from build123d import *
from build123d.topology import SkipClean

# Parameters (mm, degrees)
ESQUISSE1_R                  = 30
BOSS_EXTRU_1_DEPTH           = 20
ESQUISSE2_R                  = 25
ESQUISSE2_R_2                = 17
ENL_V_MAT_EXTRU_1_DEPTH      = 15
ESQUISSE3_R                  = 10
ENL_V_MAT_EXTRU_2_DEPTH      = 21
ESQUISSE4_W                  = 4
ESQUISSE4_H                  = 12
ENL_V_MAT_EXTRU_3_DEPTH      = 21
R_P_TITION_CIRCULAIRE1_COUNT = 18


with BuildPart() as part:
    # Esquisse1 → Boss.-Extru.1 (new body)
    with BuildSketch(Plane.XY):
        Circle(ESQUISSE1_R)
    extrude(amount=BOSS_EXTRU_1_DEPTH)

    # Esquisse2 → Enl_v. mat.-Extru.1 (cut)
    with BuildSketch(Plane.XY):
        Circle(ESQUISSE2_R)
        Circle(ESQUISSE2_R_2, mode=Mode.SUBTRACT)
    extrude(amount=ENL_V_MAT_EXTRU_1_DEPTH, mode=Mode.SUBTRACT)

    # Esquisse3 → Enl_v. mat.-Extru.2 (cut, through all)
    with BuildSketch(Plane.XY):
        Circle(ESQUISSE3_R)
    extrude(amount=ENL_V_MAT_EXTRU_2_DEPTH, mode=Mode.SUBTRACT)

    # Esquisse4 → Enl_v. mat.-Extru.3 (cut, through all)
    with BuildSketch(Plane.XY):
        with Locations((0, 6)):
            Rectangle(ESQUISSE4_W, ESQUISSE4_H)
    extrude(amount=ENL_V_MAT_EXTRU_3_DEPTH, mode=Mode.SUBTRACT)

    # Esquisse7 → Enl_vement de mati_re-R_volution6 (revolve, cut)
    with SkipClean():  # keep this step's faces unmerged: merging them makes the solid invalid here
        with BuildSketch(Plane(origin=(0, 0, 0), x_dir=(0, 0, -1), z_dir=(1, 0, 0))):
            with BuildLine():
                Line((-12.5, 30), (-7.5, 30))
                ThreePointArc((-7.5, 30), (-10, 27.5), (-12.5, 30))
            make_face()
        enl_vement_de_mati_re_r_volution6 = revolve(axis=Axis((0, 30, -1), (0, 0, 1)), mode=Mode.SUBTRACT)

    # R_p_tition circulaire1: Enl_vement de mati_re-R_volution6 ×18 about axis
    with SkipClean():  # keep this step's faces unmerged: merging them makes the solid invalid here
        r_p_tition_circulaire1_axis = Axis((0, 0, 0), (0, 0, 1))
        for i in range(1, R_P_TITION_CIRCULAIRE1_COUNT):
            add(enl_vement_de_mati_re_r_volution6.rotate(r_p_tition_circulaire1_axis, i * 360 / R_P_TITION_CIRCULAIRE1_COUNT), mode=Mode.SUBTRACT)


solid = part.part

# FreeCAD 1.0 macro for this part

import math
import FreeCAD as App
import Part
import Sketcher

V = App.Vector

doc = App.newDocument("Part")
body = doc.addObject("PartDesign::Body", "Body")

# Sketch on XY plane
sketch1 = doc.addObject("Sketcher::SketchObject", "Sketch")
body.addObject(sketch1)
sketch1.AttachmentSupport = (doc.XY_Plane, [""])
sketch1.MapMode = "FlatFace"
sketch1.addGeometry(Part.Circle(V(0, 0, 0), V(0, 0, 1), 30), False)
sketch1.addConstraint(Sketcher.Constraint("Coincident", 0, 3, -1, 1))
sketch1.addConstraint(Sketcher.Constraint("Diameter", 0, 60.0))
pad1 = doc.addObject("PartDesign::Pad", "Pad")
body.addObject(pad1)
pad1.Profile = sketch1
pad1.Length = 20

# Sketch on XY plane
sketch2 = doc.addObject("Sketcher::SketchObject", "Sketch001")
body.addObject(sketch2)
sketch2.AttachmentSupport = (doc.XY_Plane, [""])
sketch2.MapMode = "FlatFace"
sketch2.addGeometry(Part.Circle(V(0, 0, 0), V(0, 0, 1), 25), False)
sketch2.addGeometry(Part.Circle(V(0, 0, 0), V(0, 0, 1), 17), False)
sketch2.addConstraint(Sketcher.Constraint("Coincident", 0, 3, -1, 1))
sketch2.addConstraint(Sketcher.Constraint("Coincident", 1, 3, -1, 1))
sketch2.addConstraint(Sketcher.Constraint("Diameter", 0, 50.0))
sketch2.addConstraint(Sketcher.Constraint("Diameter", 1, 34.0))
pocket1 = doc.addObject("PartDesign::Pocket", "Pocket")
body.addObject(pocket1)
pocket1.Profile = sketch2
pocket1.Length = 15
pocket1.Reversed = True

# Sketch on XY plane
sketch3 = doc.addObject("Sketcher::SketchObject", "Sketch002")
body.addObject(sketch3)
sketch3.AttachmentSupport = (doc.XY_Plane, [""])
sketch3.MapMode = "FlatFace"
sketch3.addGeometry(Part.Circle(V(0, 0, 0), V(0, 0, 1), 10), False)
sketch3.addConstraint(Sketcher.Constraint("Coincident", 0, 3, -1, 1))
sketch3.addConstraint(Sketcher.Constraint("Diameter", 0, 20.0))
pocket2 = doc.addObject("PartDesign::Pocket", "Pocket001")
body.addObject(pocket2)
pocket2.Profile = sketch3
pocket2.Type = "ThroughAll"
pocket2.Reversed = True

# Sketch on XY plane
sketch4 = doc.addObject("Sketcher::SketchObject", "Sketch003")
body.addObject(sketch4)
sketch4.AttachmentSupport = (doc.XY_Plane, [""])
sketch4.MapMode = "FlatFace"
sketch4.addGeometry(Part.LineSegment(V(-2, 12, 0), V(-2, 0, 0)), False)
sketch4.addGeometry(Part.LineSegment(V(-2, 0, 0), V(2, 0, 0)), False)
sketch4.addGeometry(Part.LineSegment(V(2, 0, 0), V(2, 12, 0)), False)
sketch4.addGeometry(Part.LineSegment(V(2, 12, 0), V(-2, 12, 0)), False)
sketch4.addConstraint(Sketcher.Constraint("Coincident", 0, 2, 1, 1))
sketch4.addConstraint(Sketcher.Constraint("Coincident", 1, 2, 2, 1))
sketch4.addConstraint(Sketcher.Constraint("Coincident", 2, 2, 3, 1))
sketch4.addConstraint(Sketcher.Constraint("Coincident", 3, 2, 0, 1))
sketch4.addConstraint(Sketcher.Constraint("Vertical", 0))
sketch4.addConstraint(Sketcher.Constraint("Horizontal", 1))
sketch4.addConstraint(Sketcher.Constraint("Vertical", 2))
sketch4.addConstraint(Sketcher.Constraint("Horizontal", 3))
sketch4.addConstraint(Sketcher.Constraint("Symmetric", 0, 2, 1, 2, -1, 1))
sketch4.addConstraint(Sketcher.Constraint("DistanceX", 1, 1, 1, 2, 4.0))
sketch4.addConstraint(Sketcher.Constraint("DistanceY", 0, 2, 0, 1, 12.0))
pocket3 = doc.addObject("PartDesign::Pocket", "Pocket002")
body.addObject(pocket3)
pocket3.Profile = sketch4
pocket3.Type = "ThroughAll"
pocket3.Reversed = True

# Sketch on YZ plane
sketch5 = doc.addObject("Sketcher::SketchObject", "Sketch004")
body.addObject(sketch5)
sketch5.AttachmentSupport = (doc.YZ_Plane, [""])
sketch5.MapMode = "FlatFace"
sketch5.addGeometry(Part.LineSegment(V(30, 7.5, 0), V(30, 12.5, 0)), False)
sketch5.addGeometry(Part.ArcOfCircle(Part.Circle(V(30, 10, 0), V(0, 0, 1), 2.5), math.radians(90), math.radians(270)), False)
sketch5.addGeometry(Part.LineSegment(V(30, 7.5, 0), V(30, 12.5, 0)), True)  # axis
sketch5.addConstraint(Sketcher.Constraint("Coincident", 0, 1, 1, 2))
sketch5.addConstraint(Sketcher.Constraint("Coincident", 1, 1, 0, 2))
sketch5.addConstraint(Sketcher.Constraint("Vertical", 0))
sketch5.addConstraint(Sketcher.Constraint("Vertical", 2))
sketch5.addConstraint(Sketcher.Constraint("Coincident", 2, 1, 0, 1))
sketch5.addConstraint(Sketcher.Constraint("Vertical", 1, 3, 0, 1))
sketch5.addConstraint(Sketcher.Constraint("Equal", 0, 2))
sketch5.addConstraint(Sketcher.Constraint("Radius", 1, 2.5))
sketch5.addConstraint(Sketcher.Constraint("DistanceX", -1, 1, 1, 3, 30.0))
sketch5.addConstraint(Sketcher.Constraint("DistanceY", -1, 1, 1, 3, 10.0))
groove = doc.addObject("PartDesign::Groove", "Groove")
body.addObject(groove)
groove.Profile = sketch5
groove.ReferenceAxis = (sketch5, ["Axis0"])
groove.Angle = 360
doc.recompute()

polarpattern = doc.addObject("PartDesign::PolarPattern", "PolarPattern")
body.addObject(polarpattern)
polarpattern.Originals = [groove]
polarpattern.Axis = (doc.Z_Axis, [""])
polarpattern.Angle = 360
polarpattern.Occurrences = 18
body.Tip = polarpattern

doc.recompute()
